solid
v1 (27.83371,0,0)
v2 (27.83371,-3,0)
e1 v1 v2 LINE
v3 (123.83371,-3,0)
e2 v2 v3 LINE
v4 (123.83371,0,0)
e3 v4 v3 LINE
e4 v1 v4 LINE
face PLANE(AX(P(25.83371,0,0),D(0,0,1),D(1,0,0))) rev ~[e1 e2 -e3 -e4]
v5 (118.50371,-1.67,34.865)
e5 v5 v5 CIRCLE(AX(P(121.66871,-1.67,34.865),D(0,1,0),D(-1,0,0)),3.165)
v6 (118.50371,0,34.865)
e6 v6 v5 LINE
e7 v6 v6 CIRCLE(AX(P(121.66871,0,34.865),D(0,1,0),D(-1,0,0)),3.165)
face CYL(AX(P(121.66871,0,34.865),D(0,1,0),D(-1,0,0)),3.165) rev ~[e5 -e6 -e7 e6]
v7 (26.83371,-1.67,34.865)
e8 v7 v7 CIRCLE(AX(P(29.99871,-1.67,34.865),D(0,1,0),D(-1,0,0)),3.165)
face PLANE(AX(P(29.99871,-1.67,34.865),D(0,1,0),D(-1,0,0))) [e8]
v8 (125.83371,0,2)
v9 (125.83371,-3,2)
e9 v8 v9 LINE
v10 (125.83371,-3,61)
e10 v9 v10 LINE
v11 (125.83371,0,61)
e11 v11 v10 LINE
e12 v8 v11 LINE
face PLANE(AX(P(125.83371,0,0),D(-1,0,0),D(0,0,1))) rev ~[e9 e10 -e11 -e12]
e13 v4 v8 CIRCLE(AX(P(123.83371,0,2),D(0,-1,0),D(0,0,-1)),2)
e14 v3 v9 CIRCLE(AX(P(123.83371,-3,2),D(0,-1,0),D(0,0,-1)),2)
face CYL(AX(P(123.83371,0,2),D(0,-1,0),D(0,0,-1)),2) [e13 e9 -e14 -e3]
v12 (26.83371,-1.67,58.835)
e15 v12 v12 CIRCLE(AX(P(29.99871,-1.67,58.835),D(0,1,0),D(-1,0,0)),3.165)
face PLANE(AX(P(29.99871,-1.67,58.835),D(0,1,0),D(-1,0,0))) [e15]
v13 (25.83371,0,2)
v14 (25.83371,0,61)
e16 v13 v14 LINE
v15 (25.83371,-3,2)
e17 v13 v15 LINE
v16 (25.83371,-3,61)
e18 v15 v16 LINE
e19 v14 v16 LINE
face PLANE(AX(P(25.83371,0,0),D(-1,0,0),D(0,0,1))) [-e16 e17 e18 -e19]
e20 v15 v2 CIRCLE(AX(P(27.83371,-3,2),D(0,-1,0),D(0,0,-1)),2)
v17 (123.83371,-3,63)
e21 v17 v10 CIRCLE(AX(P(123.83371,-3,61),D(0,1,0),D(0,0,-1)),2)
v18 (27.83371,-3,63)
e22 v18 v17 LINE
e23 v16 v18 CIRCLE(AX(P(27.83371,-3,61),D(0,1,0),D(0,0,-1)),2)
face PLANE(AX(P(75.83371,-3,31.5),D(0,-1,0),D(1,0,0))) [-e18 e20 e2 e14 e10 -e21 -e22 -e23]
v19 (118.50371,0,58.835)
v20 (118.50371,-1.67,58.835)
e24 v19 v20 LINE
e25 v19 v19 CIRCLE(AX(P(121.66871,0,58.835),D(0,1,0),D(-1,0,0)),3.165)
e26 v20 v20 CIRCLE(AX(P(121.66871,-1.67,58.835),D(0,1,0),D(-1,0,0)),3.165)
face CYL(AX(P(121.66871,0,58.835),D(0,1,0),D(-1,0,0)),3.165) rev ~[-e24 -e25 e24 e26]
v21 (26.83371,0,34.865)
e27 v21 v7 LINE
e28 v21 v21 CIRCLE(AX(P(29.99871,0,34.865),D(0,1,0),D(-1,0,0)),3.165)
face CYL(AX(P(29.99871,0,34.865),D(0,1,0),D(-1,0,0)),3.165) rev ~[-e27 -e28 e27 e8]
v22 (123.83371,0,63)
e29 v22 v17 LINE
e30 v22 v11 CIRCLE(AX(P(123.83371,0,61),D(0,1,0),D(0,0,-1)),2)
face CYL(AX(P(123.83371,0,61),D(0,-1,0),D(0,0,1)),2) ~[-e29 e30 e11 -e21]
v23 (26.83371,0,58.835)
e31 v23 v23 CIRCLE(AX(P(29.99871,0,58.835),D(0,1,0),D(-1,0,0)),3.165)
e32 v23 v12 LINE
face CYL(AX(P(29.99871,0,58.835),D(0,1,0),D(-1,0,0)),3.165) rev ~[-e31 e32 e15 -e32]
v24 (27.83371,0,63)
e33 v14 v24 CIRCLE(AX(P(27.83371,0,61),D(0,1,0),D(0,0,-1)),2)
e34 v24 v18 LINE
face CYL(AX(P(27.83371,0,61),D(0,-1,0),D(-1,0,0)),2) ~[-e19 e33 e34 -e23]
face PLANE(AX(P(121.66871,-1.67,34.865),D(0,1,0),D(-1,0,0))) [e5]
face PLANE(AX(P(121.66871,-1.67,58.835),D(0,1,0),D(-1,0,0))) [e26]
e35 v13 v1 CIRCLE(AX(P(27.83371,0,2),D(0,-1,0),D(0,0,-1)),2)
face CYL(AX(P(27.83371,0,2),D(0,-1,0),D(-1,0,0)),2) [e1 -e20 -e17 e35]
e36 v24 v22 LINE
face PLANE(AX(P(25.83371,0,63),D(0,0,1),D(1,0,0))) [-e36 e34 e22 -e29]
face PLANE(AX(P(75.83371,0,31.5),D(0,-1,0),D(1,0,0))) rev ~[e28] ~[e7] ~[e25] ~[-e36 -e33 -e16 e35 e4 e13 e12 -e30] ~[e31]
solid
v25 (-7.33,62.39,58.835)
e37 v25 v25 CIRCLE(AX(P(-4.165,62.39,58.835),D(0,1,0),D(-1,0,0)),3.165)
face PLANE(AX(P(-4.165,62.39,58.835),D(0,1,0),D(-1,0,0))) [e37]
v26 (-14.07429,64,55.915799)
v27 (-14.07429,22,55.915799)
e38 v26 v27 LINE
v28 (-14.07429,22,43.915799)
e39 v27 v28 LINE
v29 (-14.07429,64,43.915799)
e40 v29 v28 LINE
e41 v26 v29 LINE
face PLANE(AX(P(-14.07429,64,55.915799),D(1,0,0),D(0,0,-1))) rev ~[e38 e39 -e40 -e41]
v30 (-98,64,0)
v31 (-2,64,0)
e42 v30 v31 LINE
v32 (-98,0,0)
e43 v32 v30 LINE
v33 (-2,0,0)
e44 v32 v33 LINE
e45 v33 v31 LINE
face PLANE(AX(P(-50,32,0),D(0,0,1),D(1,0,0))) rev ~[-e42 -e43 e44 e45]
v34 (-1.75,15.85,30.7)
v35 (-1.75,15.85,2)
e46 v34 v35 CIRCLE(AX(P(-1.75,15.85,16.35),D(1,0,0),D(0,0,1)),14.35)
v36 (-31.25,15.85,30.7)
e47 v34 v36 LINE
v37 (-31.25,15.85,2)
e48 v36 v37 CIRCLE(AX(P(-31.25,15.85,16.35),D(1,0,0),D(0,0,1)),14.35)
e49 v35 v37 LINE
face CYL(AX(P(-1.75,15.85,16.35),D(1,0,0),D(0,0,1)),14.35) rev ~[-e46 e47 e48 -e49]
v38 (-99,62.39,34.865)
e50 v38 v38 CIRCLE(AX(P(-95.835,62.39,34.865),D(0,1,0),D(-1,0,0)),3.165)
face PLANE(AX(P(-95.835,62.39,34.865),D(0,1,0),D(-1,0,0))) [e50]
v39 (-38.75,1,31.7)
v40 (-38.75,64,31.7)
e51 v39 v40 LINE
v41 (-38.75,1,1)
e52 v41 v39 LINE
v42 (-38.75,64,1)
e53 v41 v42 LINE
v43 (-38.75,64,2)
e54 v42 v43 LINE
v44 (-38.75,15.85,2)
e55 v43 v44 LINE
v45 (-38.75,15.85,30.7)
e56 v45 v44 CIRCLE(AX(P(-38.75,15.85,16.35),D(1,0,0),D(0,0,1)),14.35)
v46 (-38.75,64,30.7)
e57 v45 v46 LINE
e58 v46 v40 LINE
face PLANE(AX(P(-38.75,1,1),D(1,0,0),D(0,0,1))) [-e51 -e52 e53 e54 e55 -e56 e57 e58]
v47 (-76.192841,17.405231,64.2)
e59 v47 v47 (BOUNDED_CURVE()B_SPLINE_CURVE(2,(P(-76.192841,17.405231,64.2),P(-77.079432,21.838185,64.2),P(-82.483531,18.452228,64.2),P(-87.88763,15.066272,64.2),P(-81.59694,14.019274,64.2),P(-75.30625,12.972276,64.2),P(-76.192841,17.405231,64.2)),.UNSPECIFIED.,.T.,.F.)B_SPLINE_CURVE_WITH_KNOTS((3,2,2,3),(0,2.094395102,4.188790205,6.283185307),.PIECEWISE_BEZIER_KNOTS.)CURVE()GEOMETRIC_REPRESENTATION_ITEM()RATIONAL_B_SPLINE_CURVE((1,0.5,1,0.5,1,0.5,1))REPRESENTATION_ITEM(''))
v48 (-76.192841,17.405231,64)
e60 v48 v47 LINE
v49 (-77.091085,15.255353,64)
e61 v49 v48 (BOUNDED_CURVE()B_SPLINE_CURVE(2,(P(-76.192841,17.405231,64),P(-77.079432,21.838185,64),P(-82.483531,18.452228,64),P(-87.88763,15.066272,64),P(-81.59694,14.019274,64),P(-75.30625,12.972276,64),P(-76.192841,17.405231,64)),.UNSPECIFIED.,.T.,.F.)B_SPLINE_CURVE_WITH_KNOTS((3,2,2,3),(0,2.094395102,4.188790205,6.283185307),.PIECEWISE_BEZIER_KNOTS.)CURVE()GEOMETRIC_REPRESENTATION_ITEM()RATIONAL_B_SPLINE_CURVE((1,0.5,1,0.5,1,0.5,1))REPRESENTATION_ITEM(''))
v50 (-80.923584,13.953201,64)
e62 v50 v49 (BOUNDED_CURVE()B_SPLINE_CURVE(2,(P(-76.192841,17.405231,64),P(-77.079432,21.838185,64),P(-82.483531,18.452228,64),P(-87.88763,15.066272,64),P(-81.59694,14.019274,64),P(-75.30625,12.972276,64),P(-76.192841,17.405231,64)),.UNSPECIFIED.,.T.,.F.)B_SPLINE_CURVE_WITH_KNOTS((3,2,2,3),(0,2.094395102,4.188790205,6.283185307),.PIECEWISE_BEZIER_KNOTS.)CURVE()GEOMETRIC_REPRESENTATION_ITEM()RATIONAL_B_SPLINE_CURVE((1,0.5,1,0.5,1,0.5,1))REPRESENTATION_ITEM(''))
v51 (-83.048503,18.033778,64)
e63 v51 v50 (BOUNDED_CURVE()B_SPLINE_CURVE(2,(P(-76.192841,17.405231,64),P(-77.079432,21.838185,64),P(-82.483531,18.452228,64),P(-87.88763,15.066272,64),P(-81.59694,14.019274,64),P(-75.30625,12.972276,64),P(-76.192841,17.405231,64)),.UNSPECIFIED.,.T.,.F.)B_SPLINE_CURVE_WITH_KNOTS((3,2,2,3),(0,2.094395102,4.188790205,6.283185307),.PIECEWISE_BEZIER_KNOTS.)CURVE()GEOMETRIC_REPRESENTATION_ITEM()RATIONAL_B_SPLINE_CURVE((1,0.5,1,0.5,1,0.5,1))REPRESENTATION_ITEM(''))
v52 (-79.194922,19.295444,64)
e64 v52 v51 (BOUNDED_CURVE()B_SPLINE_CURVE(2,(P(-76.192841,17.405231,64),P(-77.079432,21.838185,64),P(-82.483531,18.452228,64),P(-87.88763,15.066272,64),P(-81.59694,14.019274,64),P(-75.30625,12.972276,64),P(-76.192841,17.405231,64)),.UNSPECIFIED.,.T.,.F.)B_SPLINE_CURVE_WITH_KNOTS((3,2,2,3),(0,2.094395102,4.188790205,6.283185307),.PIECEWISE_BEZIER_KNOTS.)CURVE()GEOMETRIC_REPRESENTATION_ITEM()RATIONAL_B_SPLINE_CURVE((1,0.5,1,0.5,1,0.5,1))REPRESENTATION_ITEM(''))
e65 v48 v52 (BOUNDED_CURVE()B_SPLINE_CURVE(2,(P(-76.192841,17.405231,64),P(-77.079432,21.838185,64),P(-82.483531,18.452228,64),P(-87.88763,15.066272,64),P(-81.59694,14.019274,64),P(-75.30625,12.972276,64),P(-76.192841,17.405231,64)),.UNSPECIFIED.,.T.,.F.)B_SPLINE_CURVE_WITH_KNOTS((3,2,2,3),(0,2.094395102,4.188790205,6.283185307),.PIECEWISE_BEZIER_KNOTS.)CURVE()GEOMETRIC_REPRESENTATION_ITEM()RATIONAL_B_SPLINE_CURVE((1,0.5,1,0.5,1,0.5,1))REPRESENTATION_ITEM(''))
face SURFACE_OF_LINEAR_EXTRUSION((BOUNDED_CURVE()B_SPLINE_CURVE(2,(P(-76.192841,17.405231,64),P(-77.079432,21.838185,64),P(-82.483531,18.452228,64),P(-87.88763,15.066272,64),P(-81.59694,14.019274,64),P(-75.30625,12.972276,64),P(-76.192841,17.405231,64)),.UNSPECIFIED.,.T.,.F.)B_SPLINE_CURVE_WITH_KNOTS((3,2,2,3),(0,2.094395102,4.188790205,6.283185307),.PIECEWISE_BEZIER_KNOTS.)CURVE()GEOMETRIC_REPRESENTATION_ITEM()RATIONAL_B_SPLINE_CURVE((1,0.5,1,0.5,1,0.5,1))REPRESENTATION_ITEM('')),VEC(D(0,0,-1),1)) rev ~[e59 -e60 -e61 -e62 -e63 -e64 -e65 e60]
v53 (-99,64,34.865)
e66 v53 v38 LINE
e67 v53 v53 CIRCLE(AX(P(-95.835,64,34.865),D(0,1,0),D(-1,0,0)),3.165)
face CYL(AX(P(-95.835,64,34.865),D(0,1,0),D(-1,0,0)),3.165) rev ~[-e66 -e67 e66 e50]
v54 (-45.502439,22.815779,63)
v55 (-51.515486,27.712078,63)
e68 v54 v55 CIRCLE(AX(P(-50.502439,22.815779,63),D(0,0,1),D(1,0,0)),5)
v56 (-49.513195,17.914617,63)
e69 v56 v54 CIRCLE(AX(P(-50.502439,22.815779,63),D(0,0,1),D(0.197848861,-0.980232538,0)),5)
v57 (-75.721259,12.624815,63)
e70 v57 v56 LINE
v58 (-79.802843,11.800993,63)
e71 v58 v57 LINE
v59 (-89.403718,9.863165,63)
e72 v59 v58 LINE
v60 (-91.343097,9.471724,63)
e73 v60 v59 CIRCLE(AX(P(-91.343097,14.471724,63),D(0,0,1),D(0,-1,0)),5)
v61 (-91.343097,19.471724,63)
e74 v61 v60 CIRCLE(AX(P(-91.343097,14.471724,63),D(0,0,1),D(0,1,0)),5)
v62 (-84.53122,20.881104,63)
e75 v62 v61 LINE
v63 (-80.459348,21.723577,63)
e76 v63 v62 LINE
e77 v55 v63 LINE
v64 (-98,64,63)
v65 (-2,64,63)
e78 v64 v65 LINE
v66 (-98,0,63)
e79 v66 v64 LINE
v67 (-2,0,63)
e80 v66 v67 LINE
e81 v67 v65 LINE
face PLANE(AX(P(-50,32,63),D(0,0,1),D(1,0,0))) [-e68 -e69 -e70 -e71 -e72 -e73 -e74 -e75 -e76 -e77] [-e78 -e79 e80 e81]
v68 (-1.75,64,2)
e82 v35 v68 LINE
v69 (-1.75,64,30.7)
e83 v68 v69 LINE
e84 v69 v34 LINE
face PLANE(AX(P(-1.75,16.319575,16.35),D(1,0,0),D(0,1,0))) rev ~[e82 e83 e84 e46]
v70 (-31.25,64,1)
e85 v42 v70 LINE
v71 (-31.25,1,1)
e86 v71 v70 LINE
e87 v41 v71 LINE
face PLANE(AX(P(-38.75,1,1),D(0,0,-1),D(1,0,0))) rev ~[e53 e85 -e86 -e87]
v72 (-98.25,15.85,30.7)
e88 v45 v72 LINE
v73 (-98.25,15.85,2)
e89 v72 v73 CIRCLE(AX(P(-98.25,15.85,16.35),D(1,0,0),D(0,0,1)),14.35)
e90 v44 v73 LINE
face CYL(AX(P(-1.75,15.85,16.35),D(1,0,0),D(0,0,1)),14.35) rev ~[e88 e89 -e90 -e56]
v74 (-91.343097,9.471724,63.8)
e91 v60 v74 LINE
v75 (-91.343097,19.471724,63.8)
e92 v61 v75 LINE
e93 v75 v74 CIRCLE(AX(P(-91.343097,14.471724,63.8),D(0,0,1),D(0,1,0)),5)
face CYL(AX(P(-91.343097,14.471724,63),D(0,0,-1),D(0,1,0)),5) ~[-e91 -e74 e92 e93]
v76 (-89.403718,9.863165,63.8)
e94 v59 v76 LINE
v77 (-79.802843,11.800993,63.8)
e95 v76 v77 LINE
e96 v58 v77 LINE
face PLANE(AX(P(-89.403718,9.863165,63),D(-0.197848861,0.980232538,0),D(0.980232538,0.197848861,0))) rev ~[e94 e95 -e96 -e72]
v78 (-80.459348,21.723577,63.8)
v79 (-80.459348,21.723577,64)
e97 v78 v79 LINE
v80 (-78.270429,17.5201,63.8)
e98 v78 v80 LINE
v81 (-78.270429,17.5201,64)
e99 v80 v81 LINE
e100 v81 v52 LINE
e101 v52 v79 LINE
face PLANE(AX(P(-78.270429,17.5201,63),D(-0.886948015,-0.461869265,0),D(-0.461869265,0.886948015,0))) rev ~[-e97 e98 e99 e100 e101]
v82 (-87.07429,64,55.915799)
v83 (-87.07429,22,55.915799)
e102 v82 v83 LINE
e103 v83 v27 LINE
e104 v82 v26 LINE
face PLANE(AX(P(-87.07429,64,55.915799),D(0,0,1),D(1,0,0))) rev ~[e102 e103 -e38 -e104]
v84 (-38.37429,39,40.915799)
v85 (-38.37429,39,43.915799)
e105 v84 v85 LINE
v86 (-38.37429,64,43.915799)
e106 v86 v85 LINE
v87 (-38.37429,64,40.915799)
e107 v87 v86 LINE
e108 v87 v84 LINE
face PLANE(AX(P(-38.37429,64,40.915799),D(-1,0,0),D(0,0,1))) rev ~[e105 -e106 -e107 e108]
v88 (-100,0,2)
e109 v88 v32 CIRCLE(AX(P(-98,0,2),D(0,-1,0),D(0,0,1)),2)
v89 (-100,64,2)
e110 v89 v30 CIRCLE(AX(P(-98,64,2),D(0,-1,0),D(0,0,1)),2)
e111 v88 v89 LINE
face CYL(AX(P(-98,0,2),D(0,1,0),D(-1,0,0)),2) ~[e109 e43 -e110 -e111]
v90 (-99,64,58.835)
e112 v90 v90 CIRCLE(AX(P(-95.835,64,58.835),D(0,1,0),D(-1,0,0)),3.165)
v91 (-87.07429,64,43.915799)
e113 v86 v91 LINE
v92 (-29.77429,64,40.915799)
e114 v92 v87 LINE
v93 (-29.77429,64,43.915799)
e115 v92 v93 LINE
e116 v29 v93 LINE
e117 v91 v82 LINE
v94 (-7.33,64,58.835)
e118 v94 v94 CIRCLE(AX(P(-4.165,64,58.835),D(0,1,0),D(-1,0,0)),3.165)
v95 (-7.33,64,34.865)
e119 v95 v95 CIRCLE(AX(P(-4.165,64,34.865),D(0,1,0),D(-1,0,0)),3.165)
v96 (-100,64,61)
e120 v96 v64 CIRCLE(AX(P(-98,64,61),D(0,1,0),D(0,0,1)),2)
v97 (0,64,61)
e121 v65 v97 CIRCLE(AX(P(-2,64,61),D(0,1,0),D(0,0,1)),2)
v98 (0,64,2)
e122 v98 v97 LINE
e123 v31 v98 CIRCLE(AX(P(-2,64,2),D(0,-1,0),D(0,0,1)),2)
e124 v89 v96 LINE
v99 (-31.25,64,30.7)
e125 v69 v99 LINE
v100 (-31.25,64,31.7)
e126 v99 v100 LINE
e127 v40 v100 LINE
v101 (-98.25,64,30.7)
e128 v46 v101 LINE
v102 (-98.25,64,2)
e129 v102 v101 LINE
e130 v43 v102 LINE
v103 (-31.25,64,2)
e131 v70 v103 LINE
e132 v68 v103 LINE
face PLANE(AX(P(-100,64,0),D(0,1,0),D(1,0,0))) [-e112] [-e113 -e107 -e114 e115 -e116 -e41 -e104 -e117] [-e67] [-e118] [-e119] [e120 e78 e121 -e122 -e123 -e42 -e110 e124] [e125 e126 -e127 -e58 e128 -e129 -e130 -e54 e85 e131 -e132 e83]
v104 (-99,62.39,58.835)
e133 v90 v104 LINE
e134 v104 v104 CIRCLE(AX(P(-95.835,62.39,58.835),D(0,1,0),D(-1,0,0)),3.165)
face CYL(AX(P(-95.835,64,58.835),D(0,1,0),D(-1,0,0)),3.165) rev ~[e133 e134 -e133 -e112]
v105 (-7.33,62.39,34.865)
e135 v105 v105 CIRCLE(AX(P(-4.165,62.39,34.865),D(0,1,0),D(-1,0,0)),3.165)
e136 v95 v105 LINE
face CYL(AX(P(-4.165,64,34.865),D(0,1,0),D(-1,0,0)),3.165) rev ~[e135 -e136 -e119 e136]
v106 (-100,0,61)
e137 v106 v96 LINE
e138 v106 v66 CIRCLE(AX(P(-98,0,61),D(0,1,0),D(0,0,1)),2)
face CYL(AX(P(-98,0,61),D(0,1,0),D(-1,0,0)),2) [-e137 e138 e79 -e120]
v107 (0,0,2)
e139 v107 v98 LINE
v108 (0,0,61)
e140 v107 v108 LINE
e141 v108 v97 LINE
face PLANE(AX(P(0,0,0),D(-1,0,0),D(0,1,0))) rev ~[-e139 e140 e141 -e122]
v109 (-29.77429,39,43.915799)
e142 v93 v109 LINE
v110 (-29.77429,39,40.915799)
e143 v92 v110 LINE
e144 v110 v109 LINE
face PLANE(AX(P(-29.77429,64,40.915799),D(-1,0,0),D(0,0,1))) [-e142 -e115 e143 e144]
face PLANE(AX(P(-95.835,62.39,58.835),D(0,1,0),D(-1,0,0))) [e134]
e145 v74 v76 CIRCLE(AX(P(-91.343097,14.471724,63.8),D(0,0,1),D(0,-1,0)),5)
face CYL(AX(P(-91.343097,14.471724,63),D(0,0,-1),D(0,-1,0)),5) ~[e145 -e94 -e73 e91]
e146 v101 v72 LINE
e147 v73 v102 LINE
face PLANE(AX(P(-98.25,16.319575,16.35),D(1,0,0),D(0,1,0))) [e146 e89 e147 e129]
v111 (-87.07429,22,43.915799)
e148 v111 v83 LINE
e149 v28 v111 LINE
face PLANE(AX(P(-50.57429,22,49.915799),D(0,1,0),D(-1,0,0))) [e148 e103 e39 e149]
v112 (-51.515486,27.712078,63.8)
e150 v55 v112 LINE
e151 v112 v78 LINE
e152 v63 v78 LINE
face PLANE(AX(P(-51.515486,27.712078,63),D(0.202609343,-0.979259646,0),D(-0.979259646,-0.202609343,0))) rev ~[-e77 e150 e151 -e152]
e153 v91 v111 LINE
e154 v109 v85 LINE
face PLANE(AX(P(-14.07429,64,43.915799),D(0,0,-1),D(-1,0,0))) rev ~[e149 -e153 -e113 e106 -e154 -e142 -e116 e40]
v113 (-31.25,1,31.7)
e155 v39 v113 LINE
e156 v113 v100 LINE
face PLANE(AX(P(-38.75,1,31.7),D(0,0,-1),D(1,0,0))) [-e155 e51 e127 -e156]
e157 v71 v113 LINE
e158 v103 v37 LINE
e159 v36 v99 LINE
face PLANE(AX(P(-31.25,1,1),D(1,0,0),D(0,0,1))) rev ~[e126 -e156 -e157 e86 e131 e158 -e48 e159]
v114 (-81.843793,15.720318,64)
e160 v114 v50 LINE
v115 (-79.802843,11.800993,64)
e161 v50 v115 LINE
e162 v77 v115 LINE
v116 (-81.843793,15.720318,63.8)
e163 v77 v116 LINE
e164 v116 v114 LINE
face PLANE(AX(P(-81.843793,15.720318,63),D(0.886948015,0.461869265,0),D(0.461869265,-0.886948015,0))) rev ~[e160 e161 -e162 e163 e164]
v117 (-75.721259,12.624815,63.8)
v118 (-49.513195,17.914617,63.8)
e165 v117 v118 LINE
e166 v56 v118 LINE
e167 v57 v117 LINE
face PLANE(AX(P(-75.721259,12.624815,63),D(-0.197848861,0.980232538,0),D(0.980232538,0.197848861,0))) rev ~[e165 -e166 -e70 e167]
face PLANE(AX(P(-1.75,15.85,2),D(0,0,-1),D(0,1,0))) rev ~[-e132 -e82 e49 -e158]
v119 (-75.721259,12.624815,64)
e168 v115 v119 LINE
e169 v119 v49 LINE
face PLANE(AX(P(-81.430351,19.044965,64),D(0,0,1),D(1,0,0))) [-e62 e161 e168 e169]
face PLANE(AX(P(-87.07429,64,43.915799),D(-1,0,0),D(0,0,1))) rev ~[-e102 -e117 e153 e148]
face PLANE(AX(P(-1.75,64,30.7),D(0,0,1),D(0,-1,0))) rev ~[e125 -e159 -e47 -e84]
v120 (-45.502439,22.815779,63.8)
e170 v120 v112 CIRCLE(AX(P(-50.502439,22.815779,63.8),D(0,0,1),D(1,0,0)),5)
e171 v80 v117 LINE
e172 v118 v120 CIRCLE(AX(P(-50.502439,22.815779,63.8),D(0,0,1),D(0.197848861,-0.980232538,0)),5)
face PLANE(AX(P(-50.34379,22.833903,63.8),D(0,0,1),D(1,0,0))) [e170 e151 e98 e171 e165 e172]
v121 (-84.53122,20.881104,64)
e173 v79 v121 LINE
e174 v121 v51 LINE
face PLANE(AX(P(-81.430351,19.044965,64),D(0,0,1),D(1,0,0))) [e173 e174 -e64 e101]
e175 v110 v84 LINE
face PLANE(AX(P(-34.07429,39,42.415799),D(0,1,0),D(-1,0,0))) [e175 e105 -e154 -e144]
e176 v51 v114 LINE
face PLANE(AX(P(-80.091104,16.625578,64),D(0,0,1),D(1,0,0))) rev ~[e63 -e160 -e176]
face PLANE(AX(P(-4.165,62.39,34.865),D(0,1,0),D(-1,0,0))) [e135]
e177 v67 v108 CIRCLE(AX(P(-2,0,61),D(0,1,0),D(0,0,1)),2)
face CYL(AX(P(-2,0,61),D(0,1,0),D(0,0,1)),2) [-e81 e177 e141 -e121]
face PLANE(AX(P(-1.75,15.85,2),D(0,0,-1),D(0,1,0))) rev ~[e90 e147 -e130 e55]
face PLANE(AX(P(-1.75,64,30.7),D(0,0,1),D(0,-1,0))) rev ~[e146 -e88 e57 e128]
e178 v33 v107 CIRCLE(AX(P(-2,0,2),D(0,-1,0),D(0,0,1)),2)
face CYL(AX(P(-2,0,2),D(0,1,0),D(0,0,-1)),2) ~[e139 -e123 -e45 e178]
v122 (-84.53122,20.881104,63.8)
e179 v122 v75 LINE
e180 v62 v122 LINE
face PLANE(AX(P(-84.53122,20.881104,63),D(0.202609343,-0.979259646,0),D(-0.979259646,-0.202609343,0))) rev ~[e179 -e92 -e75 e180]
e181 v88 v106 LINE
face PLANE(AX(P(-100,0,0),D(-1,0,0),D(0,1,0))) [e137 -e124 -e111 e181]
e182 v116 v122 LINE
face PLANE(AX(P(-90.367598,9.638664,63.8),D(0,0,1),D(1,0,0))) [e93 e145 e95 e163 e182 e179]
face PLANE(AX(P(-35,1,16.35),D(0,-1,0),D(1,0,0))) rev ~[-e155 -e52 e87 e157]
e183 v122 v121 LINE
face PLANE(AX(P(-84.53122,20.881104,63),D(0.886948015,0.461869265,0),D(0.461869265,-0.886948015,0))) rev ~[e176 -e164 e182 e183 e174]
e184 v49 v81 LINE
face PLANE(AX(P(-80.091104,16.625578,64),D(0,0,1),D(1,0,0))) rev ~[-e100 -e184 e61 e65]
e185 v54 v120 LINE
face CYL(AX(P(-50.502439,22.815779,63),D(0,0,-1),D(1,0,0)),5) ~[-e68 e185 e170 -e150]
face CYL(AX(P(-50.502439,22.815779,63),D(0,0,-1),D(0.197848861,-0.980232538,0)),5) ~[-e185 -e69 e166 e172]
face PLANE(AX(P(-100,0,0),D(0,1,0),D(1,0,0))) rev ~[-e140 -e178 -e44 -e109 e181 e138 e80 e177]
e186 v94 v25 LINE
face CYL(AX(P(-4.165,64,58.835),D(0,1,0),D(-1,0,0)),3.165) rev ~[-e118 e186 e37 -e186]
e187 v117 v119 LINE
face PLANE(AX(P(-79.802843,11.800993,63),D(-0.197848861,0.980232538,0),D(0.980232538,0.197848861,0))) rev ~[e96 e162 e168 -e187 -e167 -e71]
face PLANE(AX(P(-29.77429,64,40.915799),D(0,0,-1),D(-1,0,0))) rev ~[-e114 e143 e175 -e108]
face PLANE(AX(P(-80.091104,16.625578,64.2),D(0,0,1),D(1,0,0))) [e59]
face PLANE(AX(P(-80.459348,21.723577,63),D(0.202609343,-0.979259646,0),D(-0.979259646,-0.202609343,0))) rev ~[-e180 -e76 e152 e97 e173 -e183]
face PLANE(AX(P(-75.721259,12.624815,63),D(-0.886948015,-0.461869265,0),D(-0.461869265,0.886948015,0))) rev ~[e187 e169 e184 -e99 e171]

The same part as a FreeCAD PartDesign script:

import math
import FreeCAD as App
import Part
import Sketcher

V = App.Vector
Q = App.Units.Quantity


def edges_at(feature, points):
    """Names of the edges that pass closest to the given points."""
    edges = feature.Shape.Edges
    near = lambda p: min(range(len(edges)), key=lambda i: edges[i].distToShape(Part.Vertex(*p))[0])
    return sorted({f"Edge{near(p) + 1}" for p in points})


def add_polygon(sketch, points):
    """Adds a closed chain of lines whose ends are joined by coincident constraints."""
    first, n = sketch.GeometryCount, len(points)
    for a, b in zip(points, points[1:] + points[:1]):
        sketch.addGeometry(Part.LineSegment(App.Vector(*a, 0), App.Vector(*b, 0)), False)
    for i in range(n):
        sketch.addConstraint(Sketcher.Constraint("Coincident", first + i, 2, first + (i + 1) % n, 1))

doc = App.newDocument("Part")
params = doc.addObject("Spreadsheet::Sheet", "Params")
for row, (alias, value) in enumerate([
    ("sketch1_width", "100 mm"),
    ("sketch1_height", "64 mm"),
    ("pad1_length", "63 mm"),
    ("sketch2_radius", "14.35 mm"),
    ("sketch2_width", "48.15 mm"),
    ("pocket1_length", "96.5 mm"),
    ("sketch3_width", "7.5 mm"),
    ("sketch3_height", "30.7 mm"),
    ("pocket2_length", "63 mm"),
    ("sketch4_width", "73 mm"),
    ("sketch4_height", "12 mm"),
    ("pocket3_length", "42 mm"),
    ("sketch5_height", "3 mm"),
    ("sketch5_width", "8.6 mm"),
    ("pocket4_length", "25 mm"),
    ("sketch6_diameter", "6.33 mm"),
    ("pocket5_length", "1.61 mm"),
    ("fillet_radius", "2 mm"),
    ("sketch7_radius", "5 mm"),
    ("pad2_length", "0.8 mm"),
    ("pad3_length", "1 mm"),
    ("pad4_length", "0.2 mm"),
    ("sketch10_width", "100 mm"),
    ("sketch10_height", "63 mm"),
    ("pad5_length", "3 mm"),
    ("sketch11_diameter", "6.33 mm"),
    ("pocket6_length", "1.67 mm"),
    ("fillet2_radius", "2 mm"),
], start=1):
    params.set(f"A{row}", alias)
    params.set(f"B{row}", "=" + value)
    params.setAlias(f"B{row}", alias)

body = doc.addObject("PartDesign::Body", "Body")

# Sketch on XY plane
sketch1 = body.newObject("Sketcher::SketchObject", "Sketch")
sketch1.AttachmentSupport = (doc.getObject("XY_Plane"), [""])
sketch1.MapMode = "FlatFace"
add_polygon(sketch1, [(-100, 64), (-100, 0), (0, 0), (0, 64)])  # lines 0-3
sketch1.addConstraint(Sketcher.Constraint("Vertical", 0))
sketch1.addConstraint(Sketcher.Constraint("Horizontal", 1))
sketch1.addConstraint(Sketcher.Constraint("Vertical", 2))
sketch1.addConstraint(Sketcher.Constraint("Horizontal", 3))
sketch1.addConstraint(Sketcher.Constraint("Coincident", 1, 2, -1, 1))
sketch1.addConstraint(Sketcher.Constraint("DistanceX", 1, 1, 1, 2, Q("100 mm")))
sketch1.addConstraint(Sketcher.Constraint("DistanceY", 0, 2, 0, 1, Q("64 mm")))
sketch1.setExpression("Constraints[9]", "Params.sketch1_width")
sketch1.setExpression("Constraints[10]", "Params.sketch1_height")
pad1 = body.newObject("PartDesign::Pad", "Pad")
pad1.Profile = sketch1
pad1.setExpression("Length", "Params.pad1_length")

# Sketch on YZ plane
sketch2 = body.newObject("Sketcher::SketchObject", "Sketch001")
sketch2.AttachmentSupport = (doc.getObject("YZ_Plane"), [""])
sketch2.MapMode = "FlatFace"
sketch2.AttachmentOffset = App.Placement(V(0, 0, -1.75), App.Rotation())
sketch2.addGeometry(Part.ArcOfCircle(Part.Circle(V(16, 16, 0), V(0, 0, 1), 14), math.radians(90), math.radians(270)), False)
sketch2.addGeometry(Part.LineSegment(V(16, 2, 0), V(64, 2, 0)), False)
sketch2.addGeometry(Part.LineSegment(V(64, 2, 0), V(64, 31, 0)), False)
sketch2.addGeometry(Part.LineSegment(V(64, 31, 0), V(16, 31, 0)), False)
sketch2.addConstraint(Sketcher.Constraint("Tangent", 0, 2, 1, 1))
sketch2.addConstraint(Sketcher.Constraint("Coincident", 1, 2, 2, 1))
sketch2.addConstraint(Sketcher.Constraint("Coincident", 2, 2, 3, 1))
sketch2.addConstraint(Sketcher.Constraint("Tangent", 3, 2, 0, 1))
sketch2.addConstraint(Sketcher.Constraint("Horizontal", 1))
sketch2.addConstraint(Sketcher.Constraint("Vertical", 2))
sketch2.addConstraint(Sketcher.Constraint("Horizontal", 3))
sketch2.addConstraint(Sketcher.Constraint("Radius", 0, Q("14.35 mm")))
sketch2.addConstraint(Sketcher.Constraint("DistanceY", -1, 1, 0, 2, Q("2 mm")))
sketch2.addConstraint(Sketcher.Constraint("DistanceX", -1, 1, 1, 2, Q("64 mm")))
sketch2.addConstraint(Sketcher.Constraint("DistanceX", 1, 1, 1, 2, Q("48.15 mm")))
sketch2.setExpression("Constraints[7]", "Params.sketch2_radius")
sketch2.setExpression("Constraints[10]", "Params.sketch2_width")
pocket1 = body.newObject("PartDesign::Pocket", "Pocket")
pocket1.Profile = sketch2
pocket1.setExpression("Length", "Params.pocket1_length")

# Sketch on XZ plane
sketch3 = body.newObject("Sketcher::SketchObject", "Sketch002")
sketch3.AttachmentSupport = (doc.getObject("XZ_Plane"), [""])
sketch3.MapMode = "FlatFace"
sketch3.AttachmentOffset = App.Placement(V(0, 0, -1), App.Rotation())
add_polygon(sketch3, [(-39, 32), (-39, 1), (-31, 1), (-31, 32)])  # lines 0-3
sketch3.addConstraint(Sketcher.Constraint("Vertical", 0))
sketch3.addConstraint(Sketcher.Constraint("Horizontal", 1))
sketch3.addConstraint(Sketcher.Constraint("Vertical", 2))
sketch3.addConstraint(Sketcher.Constraint("Horizontal", 3))
sketch3.addConstraint(Sketcher.Constraint("DistanceX", 1, 1, 1, 2, Q("7.5 mm")))
sketch3.addConstraint(Sketcher.Constraint("DistanceY", 0, 2, 0, 1, Q("30.7 mm")))
sketch3.addConstraint(Sketcher.Constraint("DistanceY", -1, 1, 0, 2, Q("1 mm")))
sketch3.addConstraint(Sketcher.Constraint("DistanceX", 0, 2, -1, 1, Q("38.75 mm")))
sketch3.setExpression("Constraints[8]", "Params.sketch3_width")
sketch3.setExpression("Constraints[9]", "Params.sketch3_height")
pocket2 = body.newObject("PartDesign::Pocket", "Pocket001")
pocket2.Profile = sketch3
pocket2.setExpression("Length", "Params.pocket2_length")

# Sketch on XZ plane
sketch4 = body.newObject("Sketcher::SketchObject", "Sketch003")
sketch4.AttachmentSupport = (doc.getObject("XZ_Plane"), [""])
sketch4.MapMode = "FlatFace"
sketch4.AttachmentOffset = App.Placement(V(0, 0, -64), App.Rotation())
add_polygon(sketch4, [(-87, 56), (-14, 56), (-14, 44), (-87, 44)])  # lines 0-3
sketch4.addConstraint(Sketcher.Constraint("Horizontal", 0))
sketch4.addConstraint(Sketcher.Constraint("Vertical", 1))
sketch4.addConstraint(Sketcher.Constraint("Horizontal", 2))
sketch4.addConstraint(Sketcher.Constraint("Vertical", 3))
sketch4.addConstraint(Sketcher.Constraint("DistanceX", 0, 1, 0, 2, Q("73 mm")))
sketch4.addConstraint(Sketcher.Constraint("DistanceY", 1, 2, 1, 1, Q("12 mm")))
sketch4.addConstraint(Sketcher.Constraint("DistanceY", -1, 1, 0, 2, Q("55.915799 mm")))
sketch4.addConstraint(Sketcher.Constraint("DistanceX", 0, 2, -1, 1, Q("14.07429 mm")))
sketch4.setExpression("Constraints[8]", "Params.sketch4_width")
sketch4.setExpression("Constraints[9]", "Params.sketch4_height")
pocket3 = body.newObject("PartDesign::Pocket", "Pocket002")
pocket3.Profile = sketch4
pocket3.setExpression("Length", "Params.pocket3_length")
pocket3.Reversed = True

# Sketch on XZ plane
sketch5 = body.newObject("Sketcher::SketchObject", "Sketch004")
sketch5.AttachmentSupport = (doc.getObject("XZ_Plane"), [""])
sketch5.MapMode = "FlatFace"
sketch5.AttachmentOffset = App.Placement(V(0, 0, -64), App.Rotation())
add_polygon(sketch5, [(-29.8, 43.9), (-29.8, 40.9), (-38.4, 40.9), (-38.4, 43.9)])  # lines 0-3
sketch5.addConstraint(Sketcher.Constraint("Vertical", 0))
sketch5.addConstraint(Sketcher.Constraint("Horizontal", 1))
sketch5.addConstraint(Sketcher.Constraint("Vertical", 2))
sketch5.addConstraint(Sketcher.Constraint("Horizontal", 3))
sketch5.addConstraint(Sketcher.Constraint("DistanceY", 0, 2, 0, 1, Q("3 mm")))
sketch5.addConstraint(Sketcher.Constraint("DistanceX", 1, 2, 1, 1, Q("8.6 mm")))
sketch5.addConstraint(Sketcher.Constraint("DistanceY", -1, 1, 0, 2, Q("40.915799 mm")))
sketch5.addConstraint(Sketcher.Constraint("DistanceX", 0, 2, -1, 1, Q("29.77429 mm")))
sketch5.setExpression("Constraints[8]", "Params.sketch5_height")
sketch5.setExpression("Constraints[9]", "Params.sketch5_width")
pocket4 = body.newObject("PartDesign::Pocket", "Pocket003")
pocket4.Profile = sketch5
pocket4.setExpression("Length", "Params.pocket4_length")
pocket4.Reversed = True

# Sketch on XZ plane
sketch6 = body.newObject("Sketcher::SketchObject", "Sketch005")
sketch6.AttachmentSupport = (doc.getObject("XZ_Plane"), [""])
sketch6.MapMode = "FlatFace"
sketch6.AttachmentOffset = App.Placement(V(0, 0, -64), App.Rotation())
sketch6.addGeometry(Part.Circle(V(-95.8, 58.8, 0), V(0, 0, 1), 3.2), False)
sketch6.addGeometry(Part.Circle(V(-95.8, 34.9, 0), V(0, 0, 1), 3.2), False)
sketch6.addGeometry(Part.Circle(V(-4.2, 58.8, 0), V(0, 0, 1), 3.2), False)
sketch6.addGeometry(Part.Circle(V(-4.2, 34.9, 0), V(0, 0, 1), 3.2), False)
sketch6.addConstraint(Sketcher.Constraint("Equal", 0, 1))
sketch6.addConstraint(Sketcher.Constraint("Equal", 1, 2))
sketch6.addConstraint(Sketcher.Constraint("Equal", 2, 3))
sketch6.addConstraint(Sketcher.Constraint("Horizontal", 0, 3, 2, 3))
sketch6.addConstraint(Sketcher.Constraint("Horizontal", 1, 3, 3, 3))
sketch6.addConstraint(Sketcher.Constraint("Vertical", 0, 3, 1, 3))
sketch6.addConstraint(Sketcher.Constraint("Vertical", 2, 3, 3, 3))
sketch6.addConstraint(Sketcher.Constraint("Diameter", 0, Q("6.33 mm")))
sketch6.addConstraint(Sketcher.Constraint("DistanceY", 1, 3, 0, 3, Q("23.97 mm")))
sketch6.addConstraint(Sketcher.Constraint("DistanceX", 0, 3, 2, 3, Q("91.67 mm")))
sketch6.addConstraint(Sketcher.Constraint("DistanceX", 0, 3, -1, 1, Q("95.835 mm")))
sketch6.addConstraint(Sketcher.Constraint("DistanceY", -1, 1, 0, 3, Q("58.835 mm")))
sketch6.setExpression("Constraints[7]", "Params.sketch6_diameter")
pocket5 = body.newObject("PartDesign::Pocket", "Pocket004")
pocket5.Profile = sketch6
pocket5.setExpression("Length", "Params.pocket5_length")
pocket5.Reversed = True
doc.recompute()

fillet = body.newObject("PartDesign::Fillet", "Fillet")
fillet.Base = (pocket5, edges_at(pocket5, [
    (0, 32, 63),
    (0, 32, 0),
    (-100, 32, 0),
    (-100, 32, 63),
]))
fillet.setExpression("Radius", "Params.fillet_radius")

# Sketch on XY plane
sketch7 = body.newObject("Sketcher::SketchObject", "Sketch006")
sketch7.AttachmentSupport = (doc.getObject("XY_Plane"), [""])
sketch7.MapMode = "FlatFace"
sketch7.AttachmentOffset = App.Placement(V(0, 0, 63), App.Rotation())
sketch7.addGeometry(Part.ArcOfCircle(Part.Circle(V(-91.3, 14.5, 0), V(0, 0, 1), 5), math.radians(-90), math.radians(-67)), False)
sketch7.addGeometry(Part.LineSegment(V(-89.4, 9.9, 0), V(-79.8, 11.8, 0)), False)
sketch7.addGeometry(Part.LineSegment(V(-79.8, 11.8, 0), V(-81.8, 15.7, 0)), False)
sketch7.addGeometry(Part.LineSegment(V(-81.8, 15.7, 0), V(-84.5, 20.9, 0)), False)
sketch7.addGeometry(Part.LineSegment(V(-84.5, 20.9, 0), V(-91.3, 19.5, 0)), False)
sketch7.addGeometry(Part.ArcOfCircle(Part.Circle(V(-91.3, 14.5, 0), V(0, 0, 1), 5), math.radians(90), math.radians(270)), False)
sketch7.addGeometry(Part.ArcOfCircle(Part.Circle(V(-50.5, 22.8, 0), V(0, 0, 1), 5), math.radians(0), math.radians(102)), False)
sketch7.addGeometry(Part.LineSegment(V(-51.5, 27.7, 0), V(-80.5, 21.7, 0)), False)
sketch7.addGeometry(Part.LineSegment(V(-80.5, 21.7, 0), V(-78.3, 17.5, 0)), False)
sketch7.addGeometry(Part.LineSegment(V(-78.3, 17.5, 0), V(-75.7, 12.6, 0)), False)
sketch7.addGeometry(Part.LineSegment(V(-75.7, 12.6, 0), V(-49.5, 17.9, 0)), False)
sketch7.addGeometry(Part.ArcOfCircle(Part.Circle(V(-50.5, 22.8, 0), V(0, 0, 1), 5), math.radians(-79), math.radians(0)), False)
sketch7.addConstraint(Sketcher.Constraint("Coincident", 0, 2, 1, 1))
sketch7.addConstraint(Sketcher.Constraint("Coincident", 1, 2, 2, 1))
sketch7.addConstraint(Sketcher.Constraint("Coincident", 2, 2, 3, 1))
sketch7.addConstraint(Sketcher.Constraint("Coincident", 3, 2, 4, 1))
sketch7.addConstraint(Sketcher.Constraint("Coincident", 4, 2, 5, 1))
sketch7.addConstraint(Sketcher.Constraint("Tangent", 5, 2, 0, 1))
sketch7.addConstraint(Sketcher.Constraint("Tangent", 6, 2, 7, 1))
sketch7.addConstraint(Sketcher.Constraint("Coincident", 7, 2, 8, 1))
sketch7.addConstraint(Sketcher.Constraint("Coincident", 8, 2, 9, 1))
sketch7.addConstraint(Sketcher.Constraint("Coincident", 9, 2, 10, 1))
sketch7.addConstraint(Sketcher.Constraint("Tangent", 10, 2, 11, 1))
sketch7.addConstraint(Sketcher.Constraint("Tangent", 11, 2, 6, 1))
sketch7.addConstraint(Sketcher.Constraint("Equal", 0, 5))
sketch7.addConstraint(Sketcher.Constraint("Equal", 5, 6))
sketch7.addConstraint(Sketcher.Constraint("Equal", 6, 11))
sketch7.addConstraint(Sketcher.Constraint("Parallel", 2, 3))
sketch7.addConstraint(Sketcher.Constraint("Parallel", 4, 7))
sketch7.addConstraint(Sketcher.Constraint("Parallel", 3, 8))
sketch7.addConstraint(Sketcher.Constraint("Parallel", 8, 9))
sketch7.addConstraint(Sketcher.Constraint("Parallel", 1, 10))
sketch7.addConstraint(Sketcher.Constraint("Horizontal", 6, 3, 11, 2))
sketch7.addConstraint(Sketcher.Constraint("Vertical", 5, 3, 4, 2))
sketch7.addConstraint(Sketcher.Constraint("Vertical", 4, 2, 5, 2))
sketch7.addConstraint(Sketcher.Constraint("Radius", 0, Q("5 mm")))
sketch7.addConstraint(Sketcher.Constraint("DistanceY", -1, 1, 8, 2, Q("17.5201 mm")))
sketch7.addConstraint(Sketcher.Constraint("DistanceY", 6, 3, 6, 2, Q("4.896298 mm")))
sketch7.addConstraint(Sketcher.Constraint("DistanceY", 9, 2, 10, 2, Q("5.289802 mm")))
sketch7.addConstraint(Sketcher.Constraint("Distance", 2, Q("4.418889 mm")))
sketch7.addConstraint(Sketcher.Constraint("Distance", 3, Q("5.818589 mm")))
sketch7.addConstraint(Sketcher.Constraint("Distance", 4, Q("6.95615 mm")))
sketch7.addConstraint(Sketcher.Constraint("Distance", 8, Q("4.73926 mm")))
sketch7.addConstraint(Sketcher.Constraint("Distance", 10, Q("26.736578 mm")))
sketch7.addConstraint(Sketcher.Constraint("DistanceX", 6, 3, -1, 1, Q("50.502439 mm")))
sketch7.addConstraint(Sketcher.Constraint("DistanceY", -1, 1, 2, 2, Q("15.720318 mm")))
sketch7.addConstraint(Sketcher.Constraint("DistanceX", 3, 2, -1, 1, Q("84.53122 mm")))
sketch7.addConstraint(Sketcher.Constraint("DistanceX", 8, 2, -1, 1, Q("78.270429 mm")))
sketch7.setExpression("Constraints[23]", "Params.sketch7_radius")
pad2 = body.newObject("PartDesign::Pad", "Pad001")
pad2.Profile = sketch7
pad2.setExpression("Length", "Params.pad2_length")

# Sketch on XY plane
sketch8 = body.newObject("Sketcher::SketchObject", "Sketch007")
sketch8.AttachmentSupport = (doc.getObject("XY_Plane"), [""])
sketch8.MapMode = "FlatFace"
sketch8.AttachmentOffset = App.Placement(V(0, 0, 63), App.Rotation())
add_polygon(sketch8, [(-80.5, 21.7), (-84.5, 20.9), (-81.8, 15.7), (-79.8, 11.8), (-75.7, 12.6), (-78.3, 17.5)])  # lines 0-5
sketch8.addConstraint(Sketcher.Constraint("Parallel", 1, 2))
sketch8.addConstraint(Sketcher.Constraint("Parallel", 2, 4))
sketch8.addConstraint(Sketcher.Constraint("Parallel", 4, 5))
sketch8.addConstraint(Sketcher.Constraint("DistanceY", -1, 1, 4, 2, Q("17.5201 mm")))
sketch8.addConstraint(Sketcher.Constraint("Distance", 1, Q("5.818589 mm")))
sketch8.addConstraint(Sketcher.Constraint("Distance", 2, Q("4.418889 mm")))
sketch8.addConstraint(Sketcher.Constraint("Distance", 5, Q("4.73926 mm")))
sketch8.addConstraint(Sketcher.Constraint("DistanceX", 0, 2, -1, 1, Q("84.53122 mm")))
sketch8.addConstraint(Sketcher.Constraint("DistanceY", -1, 1, 1, 2, Q("15.720318 mm")))
sketch8.addConstraint(Sketcher.Constraint("DistanceX", 3, 2, -1, 1, Q("75.721259 mm")))
sketch8.addConstraint(Sketcher.Constraint("DistanceX", 4, 2, -1, 1, Q("78.270429 mm")))
sketch8.addConstraint(Sketcher.Constraint("DistanceX", 1, 2, 2, 2, Q("2.040949 mm")))
pad3 = body.newObject("PartDesign::Pad", "Pad002")
pad3.Profile = sketch8
pad3.setExpression("Length", "Params.pad3_length")

# Sketch on XY plane
sketch9 = body.newObject("Sketcher::SketchObject", "Sketch008")
sketch9.AttachmentSupport = (doc.getObject("XY_Plane"), [""])
sketch9.MapMode = "FlatFace"
sketch9.AttachmentOffset = App.Placement(V(0, 0, 64), App.Rotation())
sketch9.addGeometry(Part.BSplineCurve([V(-76.192841, 17.405231, 0), V(-77.079432, 21.838185, 0), V(-82.483531, 18.452228, 0), V(-87.88763, 15.066272, 0), V(-81.59694, 14.019274, 0), V(-75.30625, 12.972276, 0), V(-76.192841, 17.405231, 0)], [3, 2, 2, 3], [0, 2.094395102, 4.188790205, 6.283185307], False, 2, [1, 0.5, 1, 0.5, 1, 0.5, 1], False), False)
sketch9.addConstraint(Sketcher.Constraint("Block", 0))
pad4 = body.newObject("PartDesign::Pad", "Pad003")
pad4.Profile = sketch9
pad4.setExpression("Length", "Params.pad4_length")
body2 = doc.addObject("PartDesign::Body", "Body001")

# Sketch on XZ plane
sketch10 = body2.newObject("Sketcher::SketchObject", "Sketch009")
sketch10.AttachmentSupport = (doc.getObject("XZ_Plane001"), [""])
sketch10.MapMode = "FlatFace"
add_polygon(sketch10, [(26, 63), (26, 0), (126, 0), (126, 63)])  # lines 0-3
sketch10.addConstraint(Sketcher.Constraint("Vertical", 0))
sketch10.addConstraint(Sketcher.Constraint("Horizontal", 1))
sketch10.addConstraint(Sketcher.Constraint("Vertical", 2))
sketch10.addConstraint(Sketcher.Constraint("Horizontal", 3))
sketch10.addConstraint(Sketcher.Constraint("PointOnObject", 0, 2, -1))
sketch10.addConstraint(Sketcher.Constraint("DistanceX", 1, 1, 1, 2, Q("100 mm")))
sketch10.addConstraint(Sketcher.Constraint("DistanceY", 0, 2, 0, 1, Q("63 mm")))
sketch10.addConstraint(Sketcher.Constraint("DistanceX", -1, 1, 0, 2, Q("25.83371 mm")))
sketch10.setExpression("Constraints[9]", "Params.sketch10_width")
sketch10.setExpression("Constraints[10]", "Params.sketch10_height")
pad5 = body2.newObject("PartDesign::Pad", "Pad004")
pad5.Profile = sketch10
pad5.setExpression("Length", "Params.pad5_length")

# Sketch on XZ plane
sketch11 = body2.newObject("Sketcher::SketchObject", "Sketch010")
sketch11.AttachmentSupport = (doc.getObject("XZ_Plane001"), [""])
sketch11.MapMode = "FlatFace"
sketch11.addGeometry(Part.Circle(V(30, 34.9, 0), V(0, 0, 1), 3.2), False)
sketch11.addGeometry(Part.Circle(V(30, 58.8, 0), V(0, 0, 1), 3.2), False)
sketch11.addGeometry(Part.Circle(V(121.7, 58.8, 0), V(0, 0, 1), 3.2), False)
sketch11.addGeometry(Part.Circle(V(121.7, 34.9, 0), V(0, 0, 1), 3.2), False)
sketch11.addConstraint(Sketcher.Constraint("Equal", 0, 1))
sketch11.addConstraint(Sketcher.Constraint("Equal", 1, 2))
sketch11.addConstraint(Sketcher.Constraint("Equal", 2, 3))
sketch11.addConstraint(Sketcher.Constraint("Horizontal", 1, 3, 2, 3))
sketch11.addConstraint(Sketcher.Constraint("Horizontal", 0, 3, 3, 3))
sketch11.addConstraint(Sketcher.Constraint("Vertical", 0, 3, 1, 3))
sketch11.addConstraint(Sketcher.Constraint("Vertical", 2, 3, 3, 3))
sketch11.addConstraint(Sketcher.Constraint("Diameter", 0, Q("6.33 mm")))
sketch11.addConstraint(Sketcher.Constraint("DistanceY", 0, 3, 1, 3, Q("23.97 mm")))
sketch11.addConstraint(Sketcher.Constraint("DistanceX", 1, 3, 2, 3, Q("91.67 mm")))
sketch11.addConstraint(Sketcher.Constraint("DistanceY", -1, 1, 0, 3, Q("34.865 mm")))
sketch11.addConstraint(Sketcher.Constraint("DistanceX", -1, 1, 0, 3, Q("29.99871 mm")))
sketch11.setExpression("Constraints[7]", "Params.sketch11_diameter")
pocket6 = body2.newObject("PartDesign::Pocket", "Pocket005")
pocket6.Profile = sketch11
pocket6.setExpression("Length", "Params.pocket6_length")
pocket6.Reversed = True
doc.recompute()

fillet2 = body2.newObject("PartDesign::Fillet", "Fillet001")
fillet2.Base = (pocket6, edges_at(pocket6, [
    (125.834, -1.5, 63),
    (125.834, -1.5, 0),
    (25.834, -1.5, 0),
    (25.834, -1.5, 63),
]))
fillet2.setExpression("Radius", "Params.fillet2_radius")

doc.recompute()
